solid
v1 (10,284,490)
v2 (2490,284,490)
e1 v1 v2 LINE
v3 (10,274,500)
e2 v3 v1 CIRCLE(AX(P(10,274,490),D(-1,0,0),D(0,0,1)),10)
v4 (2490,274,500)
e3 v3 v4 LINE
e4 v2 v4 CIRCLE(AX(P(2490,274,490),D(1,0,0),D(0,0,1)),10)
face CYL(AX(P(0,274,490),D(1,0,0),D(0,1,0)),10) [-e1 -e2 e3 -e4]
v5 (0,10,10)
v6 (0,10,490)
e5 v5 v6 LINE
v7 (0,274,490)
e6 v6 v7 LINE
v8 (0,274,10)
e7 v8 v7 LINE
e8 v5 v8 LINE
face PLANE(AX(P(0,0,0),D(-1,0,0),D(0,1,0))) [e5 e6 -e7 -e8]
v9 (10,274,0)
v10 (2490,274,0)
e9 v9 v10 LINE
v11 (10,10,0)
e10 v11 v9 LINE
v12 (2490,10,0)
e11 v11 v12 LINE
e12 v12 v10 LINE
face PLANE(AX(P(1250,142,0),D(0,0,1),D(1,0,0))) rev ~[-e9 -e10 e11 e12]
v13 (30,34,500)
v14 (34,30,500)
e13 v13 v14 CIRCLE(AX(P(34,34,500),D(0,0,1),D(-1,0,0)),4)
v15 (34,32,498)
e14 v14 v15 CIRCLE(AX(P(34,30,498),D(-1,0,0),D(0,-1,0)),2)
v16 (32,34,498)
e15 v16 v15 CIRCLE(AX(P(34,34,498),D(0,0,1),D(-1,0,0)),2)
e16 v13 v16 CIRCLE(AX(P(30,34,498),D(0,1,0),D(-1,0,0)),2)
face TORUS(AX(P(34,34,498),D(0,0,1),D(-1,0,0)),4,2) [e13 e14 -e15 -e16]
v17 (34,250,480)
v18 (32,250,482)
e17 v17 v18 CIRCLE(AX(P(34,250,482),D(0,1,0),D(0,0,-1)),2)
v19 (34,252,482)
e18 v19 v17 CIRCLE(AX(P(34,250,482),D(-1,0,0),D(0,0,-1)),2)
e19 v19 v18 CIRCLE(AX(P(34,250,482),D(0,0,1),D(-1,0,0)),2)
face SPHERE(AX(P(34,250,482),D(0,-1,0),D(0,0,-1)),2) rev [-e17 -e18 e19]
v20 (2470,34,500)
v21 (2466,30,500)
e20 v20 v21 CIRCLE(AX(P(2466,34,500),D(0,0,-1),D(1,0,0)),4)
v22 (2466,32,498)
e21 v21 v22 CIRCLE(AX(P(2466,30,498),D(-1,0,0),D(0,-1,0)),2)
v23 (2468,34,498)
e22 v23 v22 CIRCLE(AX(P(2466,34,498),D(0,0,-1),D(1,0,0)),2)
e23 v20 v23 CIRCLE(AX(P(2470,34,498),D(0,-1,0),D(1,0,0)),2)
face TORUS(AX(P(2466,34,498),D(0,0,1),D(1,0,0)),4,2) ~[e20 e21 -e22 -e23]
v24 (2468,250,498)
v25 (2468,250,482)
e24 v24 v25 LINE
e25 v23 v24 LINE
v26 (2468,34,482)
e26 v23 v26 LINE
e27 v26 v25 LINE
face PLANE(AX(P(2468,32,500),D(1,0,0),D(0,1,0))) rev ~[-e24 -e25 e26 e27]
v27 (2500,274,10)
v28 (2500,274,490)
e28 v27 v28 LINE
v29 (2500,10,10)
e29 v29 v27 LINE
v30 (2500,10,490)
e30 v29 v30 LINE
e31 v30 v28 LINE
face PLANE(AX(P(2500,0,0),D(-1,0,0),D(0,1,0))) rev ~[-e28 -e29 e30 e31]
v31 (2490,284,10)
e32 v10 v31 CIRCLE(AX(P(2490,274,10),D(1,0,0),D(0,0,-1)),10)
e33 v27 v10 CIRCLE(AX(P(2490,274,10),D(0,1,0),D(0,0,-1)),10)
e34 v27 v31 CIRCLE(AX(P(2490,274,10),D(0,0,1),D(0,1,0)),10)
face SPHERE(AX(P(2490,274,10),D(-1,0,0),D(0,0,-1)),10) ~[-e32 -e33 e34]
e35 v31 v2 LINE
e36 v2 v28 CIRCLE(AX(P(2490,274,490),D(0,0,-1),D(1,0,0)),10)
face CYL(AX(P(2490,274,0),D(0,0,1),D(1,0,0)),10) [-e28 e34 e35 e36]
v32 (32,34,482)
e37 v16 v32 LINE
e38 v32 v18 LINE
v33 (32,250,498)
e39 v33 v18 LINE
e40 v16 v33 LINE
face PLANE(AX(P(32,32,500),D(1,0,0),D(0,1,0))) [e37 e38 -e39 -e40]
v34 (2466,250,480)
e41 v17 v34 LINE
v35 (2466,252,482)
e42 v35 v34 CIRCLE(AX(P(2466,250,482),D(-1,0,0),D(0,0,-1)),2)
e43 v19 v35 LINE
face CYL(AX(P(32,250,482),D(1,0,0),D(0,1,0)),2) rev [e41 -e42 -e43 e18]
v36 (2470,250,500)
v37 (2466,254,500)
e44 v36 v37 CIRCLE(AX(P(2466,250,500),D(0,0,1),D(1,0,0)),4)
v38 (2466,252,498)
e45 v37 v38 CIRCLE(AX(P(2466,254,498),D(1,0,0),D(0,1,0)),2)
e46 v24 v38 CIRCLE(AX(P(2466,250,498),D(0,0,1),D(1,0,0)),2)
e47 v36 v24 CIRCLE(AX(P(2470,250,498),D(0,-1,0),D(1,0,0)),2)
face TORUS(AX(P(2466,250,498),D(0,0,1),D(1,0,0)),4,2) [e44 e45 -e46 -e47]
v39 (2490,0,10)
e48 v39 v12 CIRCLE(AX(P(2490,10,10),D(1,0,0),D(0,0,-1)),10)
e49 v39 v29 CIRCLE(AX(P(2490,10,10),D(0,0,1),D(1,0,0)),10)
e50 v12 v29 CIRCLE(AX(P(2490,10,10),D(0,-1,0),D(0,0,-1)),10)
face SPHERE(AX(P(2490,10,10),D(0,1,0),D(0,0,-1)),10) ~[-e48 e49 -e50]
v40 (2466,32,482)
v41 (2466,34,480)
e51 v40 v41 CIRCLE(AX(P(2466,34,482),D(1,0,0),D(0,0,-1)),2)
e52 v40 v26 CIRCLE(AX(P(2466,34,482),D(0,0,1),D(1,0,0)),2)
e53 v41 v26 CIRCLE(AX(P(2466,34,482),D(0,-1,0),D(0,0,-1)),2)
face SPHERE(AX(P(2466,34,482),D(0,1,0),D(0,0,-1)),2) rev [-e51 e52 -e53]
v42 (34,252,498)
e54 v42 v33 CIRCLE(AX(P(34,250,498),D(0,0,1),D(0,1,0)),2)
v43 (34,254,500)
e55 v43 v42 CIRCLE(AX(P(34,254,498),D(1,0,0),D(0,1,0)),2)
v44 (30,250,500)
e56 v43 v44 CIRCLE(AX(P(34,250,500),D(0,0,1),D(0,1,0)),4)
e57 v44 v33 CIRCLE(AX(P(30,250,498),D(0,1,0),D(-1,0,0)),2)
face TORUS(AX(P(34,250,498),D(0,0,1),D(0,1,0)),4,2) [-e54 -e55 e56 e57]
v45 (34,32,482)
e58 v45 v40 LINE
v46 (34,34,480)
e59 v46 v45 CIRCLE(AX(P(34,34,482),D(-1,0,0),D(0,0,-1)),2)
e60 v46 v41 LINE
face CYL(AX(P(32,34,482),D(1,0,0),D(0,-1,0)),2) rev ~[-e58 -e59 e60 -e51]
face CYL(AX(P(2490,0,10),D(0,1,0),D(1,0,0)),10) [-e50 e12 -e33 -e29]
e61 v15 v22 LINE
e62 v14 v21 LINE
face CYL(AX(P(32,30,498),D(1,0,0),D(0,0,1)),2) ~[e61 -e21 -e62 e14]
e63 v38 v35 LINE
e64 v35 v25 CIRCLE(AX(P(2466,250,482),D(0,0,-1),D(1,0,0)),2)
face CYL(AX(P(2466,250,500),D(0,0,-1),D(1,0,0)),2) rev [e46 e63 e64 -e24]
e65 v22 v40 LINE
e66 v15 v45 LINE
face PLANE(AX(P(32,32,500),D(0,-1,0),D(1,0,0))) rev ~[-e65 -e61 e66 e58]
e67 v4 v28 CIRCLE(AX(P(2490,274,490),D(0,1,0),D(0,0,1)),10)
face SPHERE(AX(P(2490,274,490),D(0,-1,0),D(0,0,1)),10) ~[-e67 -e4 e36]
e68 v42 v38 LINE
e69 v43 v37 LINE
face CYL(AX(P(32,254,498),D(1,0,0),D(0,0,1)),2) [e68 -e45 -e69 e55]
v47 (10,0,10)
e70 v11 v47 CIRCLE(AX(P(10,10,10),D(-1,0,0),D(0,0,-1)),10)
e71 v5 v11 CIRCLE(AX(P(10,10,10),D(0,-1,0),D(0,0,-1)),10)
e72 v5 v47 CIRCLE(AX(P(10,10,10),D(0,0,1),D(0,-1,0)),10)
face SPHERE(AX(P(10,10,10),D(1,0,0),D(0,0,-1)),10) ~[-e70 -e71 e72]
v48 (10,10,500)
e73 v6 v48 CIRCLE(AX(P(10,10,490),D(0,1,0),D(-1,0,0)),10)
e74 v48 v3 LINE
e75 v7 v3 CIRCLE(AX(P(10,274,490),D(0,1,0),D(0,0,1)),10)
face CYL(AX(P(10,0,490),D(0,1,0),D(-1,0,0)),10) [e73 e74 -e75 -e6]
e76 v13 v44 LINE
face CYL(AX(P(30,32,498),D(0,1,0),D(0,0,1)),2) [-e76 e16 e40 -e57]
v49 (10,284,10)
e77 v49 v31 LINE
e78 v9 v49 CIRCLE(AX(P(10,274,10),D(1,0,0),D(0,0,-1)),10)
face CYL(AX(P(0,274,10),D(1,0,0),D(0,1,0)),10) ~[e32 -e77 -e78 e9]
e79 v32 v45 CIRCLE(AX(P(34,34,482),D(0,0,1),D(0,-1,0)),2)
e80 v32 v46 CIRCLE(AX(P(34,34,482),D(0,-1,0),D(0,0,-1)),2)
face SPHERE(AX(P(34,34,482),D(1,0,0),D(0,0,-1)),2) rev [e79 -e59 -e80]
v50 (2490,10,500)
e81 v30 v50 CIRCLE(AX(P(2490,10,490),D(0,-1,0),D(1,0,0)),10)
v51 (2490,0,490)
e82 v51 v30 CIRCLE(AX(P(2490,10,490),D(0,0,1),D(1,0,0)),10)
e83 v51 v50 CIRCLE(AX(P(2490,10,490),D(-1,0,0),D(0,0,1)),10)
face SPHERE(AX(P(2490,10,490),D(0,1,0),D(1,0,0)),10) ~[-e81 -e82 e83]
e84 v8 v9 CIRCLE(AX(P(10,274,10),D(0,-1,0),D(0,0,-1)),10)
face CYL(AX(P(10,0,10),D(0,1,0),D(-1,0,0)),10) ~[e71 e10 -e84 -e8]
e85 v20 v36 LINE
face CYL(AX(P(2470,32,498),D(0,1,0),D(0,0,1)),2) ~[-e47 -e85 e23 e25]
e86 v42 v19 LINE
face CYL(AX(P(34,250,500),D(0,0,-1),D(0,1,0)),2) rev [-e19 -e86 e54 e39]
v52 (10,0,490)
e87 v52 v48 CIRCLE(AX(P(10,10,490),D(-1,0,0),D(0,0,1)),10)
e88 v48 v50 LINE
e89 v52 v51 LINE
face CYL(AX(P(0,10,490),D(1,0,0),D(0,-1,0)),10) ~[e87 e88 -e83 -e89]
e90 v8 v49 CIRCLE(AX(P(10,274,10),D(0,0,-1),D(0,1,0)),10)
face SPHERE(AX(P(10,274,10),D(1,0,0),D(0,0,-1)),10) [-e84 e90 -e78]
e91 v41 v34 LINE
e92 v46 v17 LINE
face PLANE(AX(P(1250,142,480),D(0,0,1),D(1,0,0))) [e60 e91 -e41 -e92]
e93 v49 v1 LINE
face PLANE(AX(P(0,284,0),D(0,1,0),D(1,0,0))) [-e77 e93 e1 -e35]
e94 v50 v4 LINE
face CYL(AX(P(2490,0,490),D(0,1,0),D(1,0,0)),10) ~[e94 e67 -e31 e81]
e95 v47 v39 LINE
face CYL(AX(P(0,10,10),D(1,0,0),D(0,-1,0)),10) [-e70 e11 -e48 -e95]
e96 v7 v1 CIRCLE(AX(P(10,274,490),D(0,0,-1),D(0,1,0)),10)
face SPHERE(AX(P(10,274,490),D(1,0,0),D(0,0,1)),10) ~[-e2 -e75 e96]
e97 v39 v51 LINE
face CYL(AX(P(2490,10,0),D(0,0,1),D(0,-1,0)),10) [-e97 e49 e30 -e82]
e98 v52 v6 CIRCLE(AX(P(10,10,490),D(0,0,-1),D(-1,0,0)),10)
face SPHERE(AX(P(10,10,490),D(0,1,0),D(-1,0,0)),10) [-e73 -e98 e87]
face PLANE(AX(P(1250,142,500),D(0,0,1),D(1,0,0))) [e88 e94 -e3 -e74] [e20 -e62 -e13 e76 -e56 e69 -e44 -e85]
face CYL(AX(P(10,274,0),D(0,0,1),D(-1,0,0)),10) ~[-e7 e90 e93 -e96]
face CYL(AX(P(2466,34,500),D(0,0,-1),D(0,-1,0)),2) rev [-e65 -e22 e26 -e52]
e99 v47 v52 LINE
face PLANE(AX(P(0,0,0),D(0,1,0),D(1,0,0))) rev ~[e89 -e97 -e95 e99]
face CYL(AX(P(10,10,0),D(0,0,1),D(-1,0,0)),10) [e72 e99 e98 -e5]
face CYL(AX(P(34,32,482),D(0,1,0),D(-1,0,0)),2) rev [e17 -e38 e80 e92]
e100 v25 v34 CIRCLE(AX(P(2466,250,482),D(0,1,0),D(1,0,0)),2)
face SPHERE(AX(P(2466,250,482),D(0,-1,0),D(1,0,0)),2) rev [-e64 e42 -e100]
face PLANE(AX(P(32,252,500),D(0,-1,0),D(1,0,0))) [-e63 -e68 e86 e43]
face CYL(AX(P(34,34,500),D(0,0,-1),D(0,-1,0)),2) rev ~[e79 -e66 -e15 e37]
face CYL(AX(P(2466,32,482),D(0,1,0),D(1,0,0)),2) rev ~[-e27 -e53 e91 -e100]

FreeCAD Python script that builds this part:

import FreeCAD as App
import Part
import Sketcher


def edges_at(feature, points):
    """Names of the edges that pass closest to the given points."""
    edges = feature.Shape.Edges
    near = lambda p: min(range(len(edges)), key=lambda i: edges[i].distToShape(Part.Vertex(*p))[0])
    return sorted({f"Edge{near(p) + 1}" for p in points})


def add_polygon(sketch, points):
    """Adds a closed chain of lines whose ends are joined by coincident constraints."""
    first, n = sketch.GeometryCount, len(points)
    for a, b in zip(points, points[1:] + points[:1]):
        sketch.addGeometry(Part.LineSegment(App.Vector(*a, 0), App.Vector(*b, 0)), False)
    for i in range(n):
        sketch.addConstraint(Sketcher.Constraint("Coincident", first + i, 2, first + (i + 1) % n, 1))

doc = App.newDocument("Part")
body = doc.addObject("PartDesign::Body", "Body")

# Sketch on XY plane
sketch1 = body.newObject("Sketcher::SketchObject", "Sketch")
sketch1.AttachmentSupport = (doc.getObject("XY_Plane"), [""])
sketch1.MapMode = "FlatFace"
add_polygon(sketch1, [(0, 284), (0, 0), (2500, 0), (2500, 284)])  # lines 0-3
sketch1.addConstraint([
    Sketcher.Constraint("Vertical", 0),
    Sketcher.Constraint("Horizontal", 1),
    Sketcher.Constraint("Vertical", 2),
    Sketcher.Constraint("Horizontal", 3),
    Sketcher.Constraint("Coincident", 0, 2, -1, 1),
    Sketcher.Constraint("DistanceX", 1, 1, 1, 2, 2500.0),
    Sketcher.Constraint("DistanceY", 0, 2, 0, 1, 284.0),
])
pad1 = body.newObject("PartDesign::Pad", "Pad")
pad1.Profile = sketch1
pad1.Length = 500
doc.recompute()

fillet = body.newObject("PartDesign::Fillet", "Fillet")
fillet.Base = (pad1, ["Edge1"])
fillet.UseAllEdges = True
fillet.Radius = 10

# Sketch on XY plane
sketch2 = body.newObject("Sketcher::SketchObject", "Sketch001")
sketch2.AttachmentSupport = (doc.getObject("XY_Plane"), [""])
sketch2.MapMode = "FlatFace"
sketch2.AttachmentOffset = App.Placement(App.Vector(0, 0, 500), App.Rotation())
add_polygon(sketch2, [(32, 252), (32, 32), (2468, 32), (2468, 252)])  # lines 0-3
sketch2.addConstraint([
    Sketcher.Constraint("Vertical", 0),
    Sketcher.Constraint("Horizontal", 1),
    Sketcher.Constraint("Vertical", 2),
    Sketcher.Constraint("Horizontal", 3),
    Sketcher.Constraint("DistanceX", 1, 1, 1, 2, 2436.0),
    Sketcher.Constraint("DistanceY", 0, 2, 0, 1, 220.0),
    Sketcher.Constraint("DistanceX", -1, 1, 0, 2, 32.0),
    Sketcher.Constraint("DistanceY", -1, 1, 0, 2, 32.0),
])
pocket1 = body.newObject("PartDesign::Pocket", "Pocket")
pocket1.Profile = sketch2
pocket1.Length = 20
doc.recompute()

fillet2 = body.newObject("PartDesign::Fillet", "Fillet001")
fillet2.Base = (pocket1, edges_at(pocket1, [
    (2468, 142, 480),
    (2468, 252, 490),
    (1250, 32, 480),
    (2468, 32, 490),
    (32, 142, 480),
    (32, 32, 490),
    (1250, 252, 480),
    (32, 252, 490),
    (2468, 142, 500),
    (1250, 252, 500),
    (32, 142, 500),
    (1250, 32, 500),
]))
fillet2.Radius = 2

doc.recompute()
